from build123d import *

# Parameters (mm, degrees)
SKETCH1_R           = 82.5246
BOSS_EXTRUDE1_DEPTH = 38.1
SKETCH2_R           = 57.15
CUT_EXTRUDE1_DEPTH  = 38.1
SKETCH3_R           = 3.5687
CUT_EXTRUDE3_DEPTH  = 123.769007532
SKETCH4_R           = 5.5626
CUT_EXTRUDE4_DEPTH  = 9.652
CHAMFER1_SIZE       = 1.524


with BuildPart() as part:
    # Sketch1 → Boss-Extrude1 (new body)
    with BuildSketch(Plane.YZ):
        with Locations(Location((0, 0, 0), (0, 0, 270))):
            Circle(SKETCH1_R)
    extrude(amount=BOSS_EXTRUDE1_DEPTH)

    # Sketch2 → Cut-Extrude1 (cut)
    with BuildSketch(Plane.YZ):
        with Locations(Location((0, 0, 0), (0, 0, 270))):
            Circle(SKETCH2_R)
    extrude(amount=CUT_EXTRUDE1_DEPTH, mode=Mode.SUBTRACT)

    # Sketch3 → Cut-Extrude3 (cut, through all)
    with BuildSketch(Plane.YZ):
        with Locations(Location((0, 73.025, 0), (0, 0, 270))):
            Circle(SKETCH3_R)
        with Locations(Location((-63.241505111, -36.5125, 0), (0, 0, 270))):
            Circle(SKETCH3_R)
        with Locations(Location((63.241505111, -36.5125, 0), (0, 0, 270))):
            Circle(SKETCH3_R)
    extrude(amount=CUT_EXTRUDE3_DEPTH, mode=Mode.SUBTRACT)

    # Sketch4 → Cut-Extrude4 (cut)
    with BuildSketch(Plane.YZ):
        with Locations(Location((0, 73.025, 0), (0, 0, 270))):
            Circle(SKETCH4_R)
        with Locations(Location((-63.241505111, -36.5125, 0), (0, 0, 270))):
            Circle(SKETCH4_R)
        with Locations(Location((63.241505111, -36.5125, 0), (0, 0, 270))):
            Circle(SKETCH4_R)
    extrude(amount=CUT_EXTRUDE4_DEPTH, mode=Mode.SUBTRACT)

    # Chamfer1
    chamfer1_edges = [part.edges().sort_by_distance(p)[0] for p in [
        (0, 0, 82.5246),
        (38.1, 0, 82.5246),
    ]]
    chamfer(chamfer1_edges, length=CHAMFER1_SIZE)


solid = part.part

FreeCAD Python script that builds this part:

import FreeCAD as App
import Part
import Sketcher
from FreeCAD import Vector
Q = App.Units.Quantity


def edges_at(feature, points):
    """Names of the edges that pass closest to the given points."""
    edges = feature.Shape.Edges
    near = lambda p: min(range(len(edges)), key=lambda i: edges[i].distToShape(Part.Vertex(*p))[0])
    return sorted({f"Edge{near(p) + 1}" for p in points})

doc = App.newDocument("Part")
body = doc.addObject("PartDesign::Body", "Body")

sketch1 = body.newObject("Sketcher::SketchObject", "Sketch")
sketch1.AttachmentSupport = (doc.getObject("YZ_Plane"), [""])
sketch1.MapMode = "FlatFace"
sketch1.addGeometry(Part.Circle(Vector(0, 0, 0), Vector(0, 0, 1), 83), False)
sketch1.addConstraint(Sketcher.Constraint("Coincident", 0, 3, -1, 1))
sketch1.addConstraint(Sketcher.Constraint("Diameter", 0, Q("6.498 in")))
pad1 = body.newObject("PartDesign::Pad", "Pad")
pad1.Profile = sketch1
pad1.Length = Q("1.5 in")

sketch2 = body.newObject("Sketcher::SketchObject", "Sketch001")
sketch2.AttachmentSupport = (doc.getObject("YZ_Plane"), [""])
sketch2.MapMode = "FlatFace"
sketch2.addGeometry(Part.Circle(Vector(0, 0, 0), Vector(0, 0, 1), 57), False)
sketch2.addConstraint(Sketcher.Constraint("Coincident", 0, 3, -1, 1))
sketch2.addConstraint(Sketcher.Constraint("Diameter", 0, Q("4.5 in")))
pocket1 = body.newObject("PartDesign::Pocket", "Pocket")
pocket1.Profile = sketch2
pocket1.Length = Q("1.5 in")
pocket1.Reversed = True

sketch3 = body.newObject("Sketcher::SketchObject", "Sketch002")
sketch3.AttachmentSupport = (doc.getObject("YZ_Plane"), [""])
sketch3.MapMode = "FlatFace"
sketch3.addGeometry(Part.Circle(Vector(0, 73, 0), Vector(0, 0, 1), 3.6), False)
sketch3.addGeometry(Part.Circle(Vector(-63.2, -36.5, 0), Vector(0, 0, 1), 3.6), False)
sketch3.addGeometry(Part.Circle(Vector(63.2, -36.5, 0), Vector(0, 0, 1), 3.6), False)
sketch3.addConstraint(Sketcher.Constraint("Equal", 0, 1))
sketch3.addConstraint(Sketcher.Constraint("Equal", 1, 2))
sketch3.addConstraint(Sketcher.Constraint("Symmetric", 1, 3, 2, 3, -2))
sketch3.addConstraint(Sketcher.Constraint("PointOnObject", 0, 3, -2))
sketch3.addConstraint(Sketcher.Constraint("Diameter", 0, Q("0.281 in")))
sketch3.addConstraint(Sketcher.Constraint("DistanceY", -1, 1, 0, 3, Q("2.875 in")))
sketch3.addConstraint(Sketcher.Constraint("DistanceY", 1, 3, -1, 1, Q("1.4375 in")))
sketch3.addConstraint(Sketcher.Constraint("DistanceX", 1, 3, 2, 3, Q("126.48301 mm")))
pocket2 = body.newObject("PartDesign::Pocket", "Pocket001")
pocket2.Profile = sketch3
pocket2.Type = "ThroughAll"
pocket2.Reversed = True

sketch4 = body.newObject("Sketcher::SketchObject", "Sketch003")
sketch4.AttachmentSupport = (doc.getObject("YZ_Plane"), [""])
sketch4.MapMode = "FlatFace"
sketch4.addGeometry(Part.Circle(Vector(0, 73, 0), Vector(0, 0, 1), 6), False)
sketch4.addGeometry(Part.Circle(Vector(-63, -37, 0), Vector(0, 0, 1), 6), False)
sketch4.addGeometry(Part.Circle(Vector(63, -37, 0), Vector(0, 0, 1), 6), False)
sketch4.addConstraint(Sketcher.Constraint("Equal", 0, 1))
sketch4.addConstraint(Sketcher.Constraint("Equal", 1, 2))
sketch4.addConstraint(Sketcher.Constraint("Symmetric", 1, 3, 2, 3, -2))
sketch4.addConstraint(Sketcher.Constraint("PointOnObject", 0, 3, -2))
sketch4.addConstraint(Sketcher.Constraint("Diameter", 0, Q("0.438 in")))
sketch4.addConstraint(Sketcher.Constraint("DistanceY", -1, 1, 0, 3, Q("2.875 in")))
sketch4.addConstraint(Sketcher.Constraint("DistanceY", 1, 3, -1, 1, Q("1.4375 in")))
sketch4.addConstraint(Sketcher.Constraint("DistanceX", 1, 3, 2, 3, Q("126.48301 mm")))
pocket3 = body.newObject("PartDesign::Pocket", "Pocket002")
pocket3.Profile = sketch4
pocket3.Length = Q("0.38 in")
pocket3.Reversed = True
doc.recompute()

chamfer = body.newObject("PartDesign::Chamfer", "Chamfer")
chamfer.Base = (pocket3, edges_at(pocket3, [(0, 0, 82.525), (38.1, 0, 82.525)]))
chamfer.Size = Q("0.06 in")

doc.recompute()
